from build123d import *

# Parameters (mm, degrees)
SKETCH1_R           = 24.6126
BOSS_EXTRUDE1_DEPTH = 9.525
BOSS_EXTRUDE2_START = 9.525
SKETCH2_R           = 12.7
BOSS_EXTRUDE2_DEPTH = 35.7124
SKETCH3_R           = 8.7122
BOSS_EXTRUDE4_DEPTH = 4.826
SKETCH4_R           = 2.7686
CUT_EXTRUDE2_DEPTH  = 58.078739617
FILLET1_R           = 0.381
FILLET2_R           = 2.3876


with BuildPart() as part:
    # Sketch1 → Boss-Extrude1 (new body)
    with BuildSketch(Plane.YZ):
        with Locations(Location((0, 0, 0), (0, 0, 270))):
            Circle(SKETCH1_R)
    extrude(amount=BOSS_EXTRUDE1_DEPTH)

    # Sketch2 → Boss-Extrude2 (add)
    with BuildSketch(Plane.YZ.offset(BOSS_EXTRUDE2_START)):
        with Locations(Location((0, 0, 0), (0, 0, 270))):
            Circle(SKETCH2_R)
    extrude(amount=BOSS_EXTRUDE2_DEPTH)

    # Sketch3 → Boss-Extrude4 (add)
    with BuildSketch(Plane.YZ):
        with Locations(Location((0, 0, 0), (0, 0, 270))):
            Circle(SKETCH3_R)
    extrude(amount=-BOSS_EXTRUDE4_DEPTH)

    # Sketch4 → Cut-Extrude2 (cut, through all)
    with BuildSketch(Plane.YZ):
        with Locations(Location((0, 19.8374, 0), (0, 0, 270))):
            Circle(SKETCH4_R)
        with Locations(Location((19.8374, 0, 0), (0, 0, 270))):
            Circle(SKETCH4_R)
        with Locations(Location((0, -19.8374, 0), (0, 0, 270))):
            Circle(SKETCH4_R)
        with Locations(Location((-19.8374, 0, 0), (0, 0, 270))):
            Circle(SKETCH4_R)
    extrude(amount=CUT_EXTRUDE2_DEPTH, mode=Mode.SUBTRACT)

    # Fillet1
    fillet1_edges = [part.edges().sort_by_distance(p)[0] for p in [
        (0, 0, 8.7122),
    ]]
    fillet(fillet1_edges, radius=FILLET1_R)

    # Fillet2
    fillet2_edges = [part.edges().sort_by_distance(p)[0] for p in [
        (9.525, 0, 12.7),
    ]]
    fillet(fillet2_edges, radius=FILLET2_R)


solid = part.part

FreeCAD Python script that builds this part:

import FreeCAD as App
import Part
import Sketcher

V = App.Vector
Q = App.Units.Quantity


def edges_at(feature, points):
    """Names of the edges that pass closest to the given points."""
    edges = feature.Shape.Edges
    near = lambda p: min(range(len(edges)), key=lambda i: edges[i].distToShape(Part.Vertex(*p))[0])
    return sorted({f"Edge{near(p) + 1}" for p in points})

doc = App.newDocument("Part")
params = doc.addObject("Spreadsheet::Sheet", "Params")
for row, (alias, value) in enumerate([
    ("sketch1_diameter", "1.938 in"),
    ("pad1_length", "0.375 in"),
    ("sketch2_diameter", "1 in"),
    ("pad2_length", "1.406 in"),
    ("sketch3_diameter", "0.686 in"),
    ("pad3_length", "0.19 in"),
    ("sketch4_diameter", "0.218 in"),
    ("fillet_radius", "0.015 in"),
    ("fillet2_radius", "0.094 in"),
], start=1):
    params.set(f"A{row}", alias)
    params.set(f"B{row}", "=" + value)
    params.setAlias(f"B{row}", alias)

body = doc.addObject("PartDesign::Body", "Body")

sketch1 = body.newObject("Sketcher::SketchObject", "Sketch")
sketch1.AttachmentSupport = (doc.getObject("YZ_Plane"), [""])
sketch1.MapMode = "FlatFace"
sketch1.addGeometry(Part.Circle(V(0, 0, 0), V(0, 0, 1), 25), False)
sketch1.addConstraint(Sketcher.Constraint("Coincident", 0, 3, -1, 1))
sketch1.addConstraint(Sketcher.Constraint("Diameter", 0, Q("1.938 in")))
sketch1.setExpression("Constraints[1]", "Params.sketch1_diameter")
pad1 = body.newObject("PartDesign::Pad", "Pad")
pad1.Profile = sketch1
pad1.setExpression("Length", "Params.pad1_length")

sketch2 = body.newObject("Sketcher::SketchObject", "Sketch001")
sketch2.AttachmentSupport = (doc.getObject("YZ_Plane"), [""])
sketch2.MapMode = "FlatFace"
sketch2.AttachmentOffset = App.Placement(V(0, 0, 0.375 * 25.4), App.Rotation())
sketch2.addGeometry(Part.Circle(V(0, 0, 0), V(0, 0, 1), 13), False)
sketch2.addConstraint(Sketcher.Constraint("Coincident", 0, 3, -1, 1))
sketch2.addConstraint(Sketcher.Constraint("Diameter", 0, Q("1 in")))
sketch2.setExpression("Constraints[1]", "Params.sketch2_diameter")
pad2 = body.newObject("PartDesign::Pad", "Pad001")
pad2.Profile = sketch2
pad2.setExpression("Length", "Params.pad2_length")

sketch3 = body.newObject("Sketcher::SketchObject", "Sketch002")
sketch3.AttachmentSupport = (doc.getObject("YZ_Plane"), [""])
sketch3.MapMode = "FlatFace"
sketch3.addGeometry(Part.Circle(V(0, 0, 0), V(0, 0, 1), 9), False)
sketch3.addConstraint(Sketcher.Constraint("Coincident", 0, 3, -1, 1))
sketch3.addConstraint(Sketcher.Constraint("Diameter", 0, Q("0.686 in")))
sketch3.setExpression("Constraints[1]", "Params.sketch3_diameter")
pad3 = body.newObject("PartDesign::Pad", "Pad002")
pad3.Profile = sketch3
pad3.setExpression("Length", "Params.pad3_length")
pad3.Reversed = True

sketch4 = body.newObject("Sketcher::SketchObject", "Sketch003")
sketch4.AttachmentSupport = (doc.getObject("YZ_Plane"), [""])
sketch4.MapMode = "FlatFace"
sketch4.addGeometry(Part.Circle(V(0, 19.8, 0), V(0, 0, 1), 2.8), False)
sketch4.addGeometry(Part.Circle(V(19.8, 0, 0), V(0, 0, 1), 2.8), False)
sketch4.addGeometry(Part.Circle(V(0, -19.8, 0), V(0, 0, 1), 2.8), False)
sketch4.addGeometry(Part.Circle(V(-19.8, 0, 0), V(0, 0, 1), 2.8), False)
sketch4.addConstraint(Sketcher.Constraint("Equal", 0, 1))
sketch4.addConstraint(Sketcher.Constraint("Equal", 1, 2))
sketch4.addConstraint(Sketcher.Constraint("Equal", 2, 3))
sketch4.addConstraint(Sketcher.Constraint("Symmetric", 0, 3, 2, 3, -1, 1))
sketch4.addConstraint(Sketcher.Constraint("Symmetric", 1, 3, 3, 3, -1, 1))
sketch4.addConstraint(Sketcher.Constraint("PointOnObject", 0, 3, -2))
sketch4.addConstraint(Sketcher.Constraint("PointOnObject", 1, 3, -1))
sketch4.addConstraint(Sketcher.Constraint("Diameter", 0, Q("0.218 in")))
sketch4.addConstraint(Sketcher.Constraint("DistanceY", -1, 1, 0, 3, Q("0.781 in")))
sketch4.addConstraint(Sketcher.Constraint("DistanceX", -1, 1, 1, 3, Q("0.781 in")))
sketch4.setExpression("Constraints[7]", "Params.sketch4_diameter")
pocket1 = body.newObject("PartDesign::Pocket", "Pocket")
pocket1.Profile = sketch4
pocket1.Type = "ThroughAll"
pocket1.Reversed = True
doc.recompute()

fillet = body.newObject("PartDesign::Fillet", "Fillet")
fillet.Base = (pocket1, edges_at(pocket1, [(0, 0, 8.712)]))
fillet.setExpression("Radius", "Params.fillet_radius")
doc.recompute()

fillet2 = body.newObject("PartDesign::Fillet", "Fillet001")
fillet2.Base = (fillet, edges_at(fillet, [(9.525, 0, 12.7)]))
fillet2.setExpression("Radius", "Params.fillet2_radius")

doc.recompute()
